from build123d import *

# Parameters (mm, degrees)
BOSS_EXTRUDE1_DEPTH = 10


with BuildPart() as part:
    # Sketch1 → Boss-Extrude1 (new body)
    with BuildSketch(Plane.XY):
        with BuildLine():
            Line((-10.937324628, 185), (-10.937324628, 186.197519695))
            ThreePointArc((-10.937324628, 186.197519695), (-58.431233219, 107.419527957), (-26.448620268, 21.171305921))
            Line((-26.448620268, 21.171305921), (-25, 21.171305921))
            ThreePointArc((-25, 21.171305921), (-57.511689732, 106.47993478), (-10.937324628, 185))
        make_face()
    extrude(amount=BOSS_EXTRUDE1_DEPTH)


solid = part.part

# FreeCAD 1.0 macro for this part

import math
import FreeCAD as App
import Part
import Sketcher

V = App.Vector

doc = App.newDocument("Part")
body = doc.addObject("PartDesign::Body", "Body")

# Sketch on XY plane
sketch1 = body.newObject("Sketcher::SketchObject", "Sketch")
sketch1.AttachmentSupport = (doc.getObject("XY_Plane"), [""])
sketch1.MapMode = "FlatFace"
sketch1.addGeometry(Part.LineSegment(V(-10.9, 185, 0), V(-10.9, 186.2, 0)), False)
sketch1.addGeometry(Part.ArcOfCircle(Part.Circle(V(47.1, 97.5, 0), V(0, 0, 1), 106), math.radians(123), math.radians(226)), False)
sketch1.addGeometry(Part.LineSegment(V(-26.4, 21.2, 0), V(-25, 21.2, 0)), False)
sketch1.addGeometry(Part.ArcOfCircle(Part.Circle(V(47.1, 97.5, 0), V(0, 0, 1), 105), math.radians(124), math.radians(227)), False)
sketch1.addConstraint(Sketcher.Constraint("Coincident", 0, 2, 1, 1))
sketch1.addConstraint(Sketcher.Constraint("Coincident", 1, 2, 2, 1))
sketch1.addConstraint(Sketcher.Constraint("Coincident", 2, 2, 3, 2))
sketch1.addConstraint(Sketcher.Constraint("Coincident", 3, 1, 0, 1))
sketch1.addConstraint(Sketcher.Constraint("Vertical", 0))
sketch1.addConstraint(Sketcher.Constraint("Horizontal", 2))
sketch1.addConstraint(Sketcher.Constraint("Coincident", 3, 3, 1, 3))
sketch1.addConstraint(Sketcher.Constraint("Radius", 1, 106.0))
sketch1.addConstraint(Sketcher.Constraint("Radius", 3, 105.0))
sketch1.addConstraint(Sketcher.Constraint("DistanceX", 2, 2, -1, 1, 25.0))
sketch1.addConstraint(Sketcher.Constraint("DistanceY", -1, 1, 3, 1, 185.0))
sketch1.addConstraint(Sketcher.Constraint("DistanceY", -1, 1, 1, 3, 97.5))
sketch1.addConstraint(Sketcher.Constraint("DistanceX", 2, 1, 2, 2, 1.44862))
pad1 = body.newObject("PartDesign::Pad", "Pad")
pad1.Profile = sketch1
pad1.Length = 10

doc.recompute()
